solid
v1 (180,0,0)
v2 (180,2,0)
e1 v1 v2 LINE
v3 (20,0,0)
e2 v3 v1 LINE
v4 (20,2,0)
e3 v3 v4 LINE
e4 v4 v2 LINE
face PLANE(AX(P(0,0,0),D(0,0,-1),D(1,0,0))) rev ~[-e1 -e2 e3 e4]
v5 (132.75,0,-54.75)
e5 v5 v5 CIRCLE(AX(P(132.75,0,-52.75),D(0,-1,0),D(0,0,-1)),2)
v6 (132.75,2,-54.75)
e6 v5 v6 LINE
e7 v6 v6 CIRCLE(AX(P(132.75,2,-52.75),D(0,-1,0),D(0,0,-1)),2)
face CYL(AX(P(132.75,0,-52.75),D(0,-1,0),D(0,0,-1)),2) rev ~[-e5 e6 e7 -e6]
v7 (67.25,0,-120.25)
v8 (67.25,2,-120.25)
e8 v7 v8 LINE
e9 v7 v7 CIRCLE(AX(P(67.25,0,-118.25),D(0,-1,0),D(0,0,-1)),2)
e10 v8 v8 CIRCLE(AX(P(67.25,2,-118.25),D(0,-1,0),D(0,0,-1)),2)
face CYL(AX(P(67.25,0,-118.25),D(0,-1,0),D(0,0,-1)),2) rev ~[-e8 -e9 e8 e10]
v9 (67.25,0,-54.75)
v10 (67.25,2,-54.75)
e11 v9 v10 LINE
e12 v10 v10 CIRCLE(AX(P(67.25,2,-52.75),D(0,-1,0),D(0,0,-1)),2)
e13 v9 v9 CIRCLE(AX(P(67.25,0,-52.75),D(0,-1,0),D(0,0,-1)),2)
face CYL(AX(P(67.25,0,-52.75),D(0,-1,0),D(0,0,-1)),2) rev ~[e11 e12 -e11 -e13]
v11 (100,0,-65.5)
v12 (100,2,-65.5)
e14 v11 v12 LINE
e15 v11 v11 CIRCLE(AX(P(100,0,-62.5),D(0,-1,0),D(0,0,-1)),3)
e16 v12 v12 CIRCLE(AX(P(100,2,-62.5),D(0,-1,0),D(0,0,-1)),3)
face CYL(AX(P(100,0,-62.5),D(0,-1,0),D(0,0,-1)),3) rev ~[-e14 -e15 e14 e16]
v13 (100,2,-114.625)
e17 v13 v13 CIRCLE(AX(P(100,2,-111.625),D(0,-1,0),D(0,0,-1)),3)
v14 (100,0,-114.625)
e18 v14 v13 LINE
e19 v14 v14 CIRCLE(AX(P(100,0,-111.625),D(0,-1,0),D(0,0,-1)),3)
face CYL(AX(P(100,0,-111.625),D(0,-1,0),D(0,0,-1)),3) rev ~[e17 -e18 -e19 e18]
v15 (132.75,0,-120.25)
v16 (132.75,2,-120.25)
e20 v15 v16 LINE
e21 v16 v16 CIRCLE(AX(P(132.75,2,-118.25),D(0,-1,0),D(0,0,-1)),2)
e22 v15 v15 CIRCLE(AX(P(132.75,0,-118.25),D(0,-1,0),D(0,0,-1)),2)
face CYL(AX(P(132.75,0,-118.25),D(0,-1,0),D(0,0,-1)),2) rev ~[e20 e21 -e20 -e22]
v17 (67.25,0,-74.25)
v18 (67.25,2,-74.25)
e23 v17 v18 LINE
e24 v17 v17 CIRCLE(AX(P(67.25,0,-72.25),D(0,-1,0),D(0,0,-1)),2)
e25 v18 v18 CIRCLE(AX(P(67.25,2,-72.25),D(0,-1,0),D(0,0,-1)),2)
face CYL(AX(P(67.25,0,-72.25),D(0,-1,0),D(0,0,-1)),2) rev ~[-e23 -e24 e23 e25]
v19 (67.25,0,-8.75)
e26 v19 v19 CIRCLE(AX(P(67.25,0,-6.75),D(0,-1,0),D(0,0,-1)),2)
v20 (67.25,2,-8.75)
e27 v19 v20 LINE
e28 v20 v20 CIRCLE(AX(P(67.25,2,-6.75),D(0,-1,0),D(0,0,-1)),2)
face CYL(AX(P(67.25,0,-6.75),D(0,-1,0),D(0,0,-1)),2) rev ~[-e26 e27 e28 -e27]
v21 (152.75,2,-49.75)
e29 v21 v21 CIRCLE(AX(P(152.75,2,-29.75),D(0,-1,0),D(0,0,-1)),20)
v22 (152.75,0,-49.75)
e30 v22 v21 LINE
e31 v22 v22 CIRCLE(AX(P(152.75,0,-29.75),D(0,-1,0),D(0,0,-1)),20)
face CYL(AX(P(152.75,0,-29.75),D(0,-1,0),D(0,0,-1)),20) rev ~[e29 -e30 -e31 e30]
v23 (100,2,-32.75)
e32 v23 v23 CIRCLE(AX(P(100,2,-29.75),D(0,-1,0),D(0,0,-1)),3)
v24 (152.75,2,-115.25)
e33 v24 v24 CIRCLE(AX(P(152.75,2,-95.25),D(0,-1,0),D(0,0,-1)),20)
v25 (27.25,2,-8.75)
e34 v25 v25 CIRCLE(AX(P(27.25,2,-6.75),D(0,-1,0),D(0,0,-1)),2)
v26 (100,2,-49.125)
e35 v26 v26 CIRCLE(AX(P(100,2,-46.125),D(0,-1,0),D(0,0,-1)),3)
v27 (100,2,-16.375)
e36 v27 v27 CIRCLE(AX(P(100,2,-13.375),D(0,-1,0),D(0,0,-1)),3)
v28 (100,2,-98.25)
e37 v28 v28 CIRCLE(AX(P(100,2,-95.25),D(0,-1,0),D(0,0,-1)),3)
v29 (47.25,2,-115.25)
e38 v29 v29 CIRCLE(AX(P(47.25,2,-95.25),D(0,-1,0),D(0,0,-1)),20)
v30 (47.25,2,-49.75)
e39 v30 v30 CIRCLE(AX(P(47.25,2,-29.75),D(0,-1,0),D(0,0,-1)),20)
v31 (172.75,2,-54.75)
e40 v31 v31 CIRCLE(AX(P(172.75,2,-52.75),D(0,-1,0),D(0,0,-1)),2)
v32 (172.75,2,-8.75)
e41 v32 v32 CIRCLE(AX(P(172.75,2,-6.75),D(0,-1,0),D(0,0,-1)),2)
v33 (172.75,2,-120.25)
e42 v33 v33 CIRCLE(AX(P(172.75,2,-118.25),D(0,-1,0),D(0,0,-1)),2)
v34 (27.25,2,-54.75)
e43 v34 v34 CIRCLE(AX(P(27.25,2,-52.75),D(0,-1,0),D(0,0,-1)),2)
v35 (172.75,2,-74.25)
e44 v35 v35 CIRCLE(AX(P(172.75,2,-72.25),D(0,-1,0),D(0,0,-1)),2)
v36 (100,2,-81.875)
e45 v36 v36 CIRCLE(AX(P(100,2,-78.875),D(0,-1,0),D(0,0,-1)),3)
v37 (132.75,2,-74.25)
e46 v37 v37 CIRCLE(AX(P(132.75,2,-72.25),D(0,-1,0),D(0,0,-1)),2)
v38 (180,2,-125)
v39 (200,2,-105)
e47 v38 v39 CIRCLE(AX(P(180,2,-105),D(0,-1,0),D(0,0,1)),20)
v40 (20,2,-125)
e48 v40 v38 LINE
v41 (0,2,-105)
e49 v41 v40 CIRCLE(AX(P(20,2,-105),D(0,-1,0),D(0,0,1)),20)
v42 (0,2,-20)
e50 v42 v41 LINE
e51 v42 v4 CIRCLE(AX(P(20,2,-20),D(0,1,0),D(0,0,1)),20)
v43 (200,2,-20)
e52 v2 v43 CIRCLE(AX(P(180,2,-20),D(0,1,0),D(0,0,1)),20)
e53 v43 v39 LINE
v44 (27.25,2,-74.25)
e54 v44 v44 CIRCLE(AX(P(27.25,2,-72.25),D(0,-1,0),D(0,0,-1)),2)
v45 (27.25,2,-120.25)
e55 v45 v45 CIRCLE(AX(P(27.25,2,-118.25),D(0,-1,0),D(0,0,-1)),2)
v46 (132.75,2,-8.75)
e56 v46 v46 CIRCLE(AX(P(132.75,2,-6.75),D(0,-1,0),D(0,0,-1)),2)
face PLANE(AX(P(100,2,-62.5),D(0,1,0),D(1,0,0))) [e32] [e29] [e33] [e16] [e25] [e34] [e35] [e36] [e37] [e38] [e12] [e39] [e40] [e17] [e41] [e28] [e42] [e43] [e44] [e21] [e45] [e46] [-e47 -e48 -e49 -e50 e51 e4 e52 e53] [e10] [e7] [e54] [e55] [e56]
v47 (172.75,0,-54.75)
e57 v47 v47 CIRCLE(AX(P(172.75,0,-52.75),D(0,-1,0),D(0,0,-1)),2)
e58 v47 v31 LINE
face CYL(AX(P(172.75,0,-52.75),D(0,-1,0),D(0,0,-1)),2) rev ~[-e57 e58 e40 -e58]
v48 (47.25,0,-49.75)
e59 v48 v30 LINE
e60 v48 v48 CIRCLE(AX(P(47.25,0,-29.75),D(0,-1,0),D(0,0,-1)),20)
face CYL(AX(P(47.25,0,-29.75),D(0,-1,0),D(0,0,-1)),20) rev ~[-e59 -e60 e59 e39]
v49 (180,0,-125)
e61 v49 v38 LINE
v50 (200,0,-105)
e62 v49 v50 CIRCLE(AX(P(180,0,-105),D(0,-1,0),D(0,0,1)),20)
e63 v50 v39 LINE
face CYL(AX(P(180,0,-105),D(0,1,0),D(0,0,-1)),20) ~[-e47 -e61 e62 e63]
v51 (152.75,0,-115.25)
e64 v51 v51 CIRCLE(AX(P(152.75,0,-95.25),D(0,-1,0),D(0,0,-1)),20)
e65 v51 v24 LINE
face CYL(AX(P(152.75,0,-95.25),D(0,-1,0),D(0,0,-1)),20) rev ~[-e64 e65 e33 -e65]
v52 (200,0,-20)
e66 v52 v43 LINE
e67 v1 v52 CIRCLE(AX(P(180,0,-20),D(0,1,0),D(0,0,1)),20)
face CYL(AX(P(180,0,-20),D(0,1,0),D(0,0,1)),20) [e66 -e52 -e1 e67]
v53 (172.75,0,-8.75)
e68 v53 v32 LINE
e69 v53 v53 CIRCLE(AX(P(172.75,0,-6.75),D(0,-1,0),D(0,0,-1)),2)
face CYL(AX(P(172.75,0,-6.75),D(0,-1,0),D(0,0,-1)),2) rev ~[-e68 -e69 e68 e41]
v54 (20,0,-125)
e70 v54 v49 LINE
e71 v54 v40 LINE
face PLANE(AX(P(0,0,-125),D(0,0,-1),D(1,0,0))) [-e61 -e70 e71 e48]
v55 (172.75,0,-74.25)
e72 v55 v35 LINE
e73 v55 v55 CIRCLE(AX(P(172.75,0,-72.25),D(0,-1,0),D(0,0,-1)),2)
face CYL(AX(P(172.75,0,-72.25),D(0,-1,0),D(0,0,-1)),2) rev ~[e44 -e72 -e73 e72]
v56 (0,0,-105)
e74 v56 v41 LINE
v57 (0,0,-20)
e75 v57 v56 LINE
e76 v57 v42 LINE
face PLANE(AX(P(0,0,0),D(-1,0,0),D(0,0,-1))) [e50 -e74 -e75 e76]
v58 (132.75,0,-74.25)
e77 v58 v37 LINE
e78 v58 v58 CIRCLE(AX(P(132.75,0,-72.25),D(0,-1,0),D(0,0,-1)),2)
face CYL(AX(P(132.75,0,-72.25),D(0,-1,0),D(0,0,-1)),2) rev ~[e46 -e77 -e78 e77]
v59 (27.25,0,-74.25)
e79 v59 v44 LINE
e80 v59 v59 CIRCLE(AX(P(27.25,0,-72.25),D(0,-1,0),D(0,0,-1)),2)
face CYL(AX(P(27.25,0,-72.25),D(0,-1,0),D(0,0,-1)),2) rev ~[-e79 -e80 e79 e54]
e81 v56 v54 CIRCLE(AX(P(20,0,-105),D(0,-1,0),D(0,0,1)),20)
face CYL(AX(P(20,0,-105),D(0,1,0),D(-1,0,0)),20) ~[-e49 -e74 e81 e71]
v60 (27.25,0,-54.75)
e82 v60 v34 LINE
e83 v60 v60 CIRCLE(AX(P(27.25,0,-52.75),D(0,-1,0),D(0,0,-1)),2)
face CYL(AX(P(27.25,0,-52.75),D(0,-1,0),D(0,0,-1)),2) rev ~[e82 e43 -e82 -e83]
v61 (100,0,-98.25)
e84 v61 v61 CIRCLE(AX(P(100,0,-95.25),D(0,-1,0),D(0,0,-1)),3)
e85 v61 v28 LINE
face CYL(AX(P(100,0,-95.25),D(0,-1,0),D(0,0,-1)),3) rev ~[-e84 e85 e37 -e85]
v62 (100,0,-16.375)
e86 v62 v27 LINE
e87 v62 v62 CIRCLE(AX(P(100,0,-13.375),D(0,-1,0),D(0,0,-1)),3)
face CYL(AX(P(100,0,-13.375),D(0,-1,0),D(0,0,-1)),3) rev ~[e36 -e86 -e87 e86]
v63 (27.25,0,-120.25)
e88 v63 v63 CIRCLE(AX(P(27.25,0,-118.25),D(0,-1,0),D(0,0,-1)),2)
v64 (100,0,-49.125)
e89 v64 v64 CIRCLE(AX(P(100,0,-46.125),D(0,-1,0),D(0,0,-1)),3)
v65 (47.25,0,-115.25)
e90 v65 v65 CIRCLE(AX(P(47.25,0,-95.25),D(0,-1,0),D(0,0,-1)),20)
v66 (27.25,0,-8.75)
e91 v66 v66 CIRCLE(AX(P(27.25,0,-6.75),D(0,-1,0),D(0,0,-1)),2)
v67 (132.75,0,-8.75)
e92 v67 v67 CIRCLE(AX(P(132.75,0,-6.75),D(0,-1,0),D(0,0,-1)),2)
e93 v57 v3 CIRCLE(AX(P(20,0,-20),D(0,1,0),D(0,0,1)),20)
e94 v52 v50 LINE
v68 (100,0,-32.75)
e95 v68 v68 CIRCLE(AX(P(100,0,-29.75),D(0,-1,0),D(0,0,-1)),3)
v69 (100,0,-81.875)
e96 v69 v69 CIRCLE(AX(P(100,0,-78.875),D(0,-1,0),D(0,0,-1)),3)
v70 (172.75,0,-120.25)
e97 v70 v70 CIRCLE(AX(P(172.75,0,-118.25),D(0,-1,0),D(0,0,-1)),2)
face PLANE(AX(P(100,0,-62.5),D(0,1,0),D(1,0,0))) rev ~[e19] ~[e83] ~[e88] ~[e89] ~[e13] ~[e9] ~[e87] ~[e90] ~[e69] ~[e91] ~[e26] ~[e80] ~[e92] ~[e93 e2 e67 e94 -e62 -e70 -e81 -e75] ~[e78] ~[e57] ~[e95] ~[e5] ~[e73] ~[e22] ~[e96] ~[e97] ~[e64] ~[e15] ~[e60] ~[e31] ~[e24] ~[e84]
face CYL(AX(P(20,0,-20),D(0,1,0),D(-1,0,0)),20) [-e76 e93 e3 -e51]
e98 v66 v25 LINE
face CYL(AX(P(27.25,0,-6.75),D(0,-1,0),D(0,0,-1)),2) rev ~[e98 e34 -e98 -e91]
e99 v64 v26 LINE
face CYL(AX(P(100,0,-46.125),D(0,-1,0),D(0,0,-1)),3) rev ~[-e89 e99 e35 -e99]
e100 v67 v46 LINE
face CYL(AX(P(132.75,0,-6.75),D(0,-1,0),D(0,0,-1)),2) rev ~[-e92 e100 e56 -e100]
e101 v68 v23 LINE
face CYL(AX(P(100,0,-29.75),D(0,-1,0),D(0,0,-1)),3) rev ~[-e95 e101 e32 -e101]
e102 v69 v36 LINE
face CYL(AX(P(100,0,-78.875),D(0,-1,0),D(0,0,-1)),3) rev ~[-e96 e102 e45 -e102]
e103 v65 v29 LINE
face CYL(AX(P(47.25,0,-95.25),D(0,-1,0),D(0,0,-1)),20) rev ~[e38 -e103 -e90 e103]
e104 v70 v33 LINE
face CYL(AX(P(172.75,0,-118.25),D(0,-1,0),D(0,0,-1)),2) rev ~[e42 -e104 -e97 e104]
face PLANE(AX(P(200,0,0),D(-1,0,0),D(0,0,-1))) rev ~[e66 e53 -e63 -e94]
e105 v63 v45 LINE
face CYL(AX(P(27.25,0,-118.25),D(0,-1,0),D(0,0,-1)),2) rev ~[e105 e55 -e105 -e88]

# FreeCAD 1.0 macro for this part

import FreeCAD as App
import Part
import Sketcher

V = App.Vector
Q = App.Units.Quantity


def edges_at(feature, points):
    """Names of the edges that pass closest to the given points."""
    edges = feature.Shape.Edges
    near = lambda p: min(range(len(edges)), key=lambda i: edges[i].distToShape(Part.Vertex(*p))[0])
    return sorted({f"Edge{near(p) + 1}" for p in points})

doc = App.newDocument("Part")
body = doc.addObject("PartDesign::Body", "Body")

sketch1 = body.newObject("Sketcher::SketchObject", "Sketch")
sketch1.AttachmentSupport = (doc.getObject("XZ_Plane"), [""])
sketch1.MapMode = "FlatFace"
sketch1.addGeometry(Part.LineSegment(V(0, -125, 0), V(0, 0, 0)), False)
sketch1.addGeometry(Part.LineSegment(V(0, 0, 0), V(200, 0, 0)), False)
sketch1.addGeometry(Part.LineSegment(V(200, 0, 0), V(200, -125, 0)), False)
sketch1.addGeometry(Part.LineSegment(V(200, -125, 0), V(0, -125, 0)), False)
sketch1.addConstraint(Sketcher.Constraint("Coincident", 0, 2, 1, 1))
sketch1.addConstraint(Sketcher.Constraint("Coincident", 1, 2, 2, 1))
sketch1.addConstraint(Sketcher.Constraint("Coincident", 2, 2, 3, 1))
sketch1.addConstraint(Sketcher.Constraint("Coincident", 3, 2, 0, 1))
sketch1.addConstraint(Sketcher.Constraint("Vertical", 0))
sketch1.addConstraint(Sketcher.Constraint("Horizontal", 1))
sketch1.addConstraint(Sketcher.Constraint("Vertical", 2))
sketch1.addConstraint(Sketcher.Constraint("Horizontal", 3))
sketch1.addConstraint(Sketcher.Constraint("Coincident", 0, 2, -1, 1))
sketch1.addConstraint(Sketcher.Constraint("DistanceX", 1, 1, 1, 2, Q("200 mm")))
sketch1.addConstraint(Sketcher.Constraint("DistanceY", 0, 1, 0, 2, Q("125 mm")))
pad1 = body.newObject("PartDesign::Pad", "Pad")
pad1.Profile = sketch1
pad1.Length = 2
pad1.Reversed = True

sketch2 = body.newObject("Sketcher::SketchObject", "Sketch001")
sketch2.AttachmentSupport = (doc.getObject("XZ_Plane"), [""])
sketch2.MapMode = "FlatFace"
sketch2.addGeometry(Part.Circle(V(27.2, -6.8, 0), V(0, 0, 1), 2), False)
sketch2.addGeometry(Part.Circle(V(67.2, -6.8, 0), V(0, 0, 1), 2), False)
sketch2.addGeometry(Part.Circle(V(132.8, -6.8, 0), V(0, 0, 1), 2), False)
sketch2.addGeometry(Part.Circle(V(172.8, -6.8, 0), V(0, 0, 1), 2), False)
sketch2.addGeometry(Part.Circle(V(172.8, -52.8, 0), V(0, 0, 1), 2), False)
sketch2.addGeometry(Part.Circle(V(132.8, -52.8, 0), V(0, 0, 1), 2), False)
sketch2.addGeometry(Part.Circle(V(132.8, -72.2, 0), V(0, 0, 1), 2), False)
sketch2.addGeometry(Part.Circle(V(172.8, -72.2, 0), V(0, 0, 1), 2), False)
sketch2.addGeometry(Part.Circle(V(132.8, -118.2, 0), V(0, 0, 1), 2), False)
sketch2.addGeometry(Part.Circle(V(172.8, -118.2, 0), V(0, 0, 1), 2), False)
sketch2.addGeometry(Part.Circle(V(27.2, -52.8, 0), V(0, 0, 1), 2), False)
sketch2.addGeometry(Part.Circle(V(67.2, -52.8, 0), V(0, 0, 1), 2), False)
sketch2.addGeometry(Part.Circle(V(27.2, -72.2, 0), V(0, 0, 1), 2), False)
sketch2.addGeometry(Part.Circle(V(67.2, -72.2, 0), V(0, 0, 1), 2), False)
sketch2.addGeometry(Part.Circle(V(67.2, -118.2, 0), V(0, 0, 1), 2), False)
sketch2.addGeometry(Part.Circle(V(27.2, -118.2, 0), V(0, 0, 1), 2), False)
sketch2.addConstraint(Sketcher.Constraint("Equal", 0, 1))
sketch2.addConstraint(Sketcher.Constraint("Equal", 1, 2))
sketch2.addConstraint(Sketcher.Constraint("Equal", 2, 3))
sketch2.addConstraint(Sketcher.Constraint("Equal", 3, 4))
sketch2.addConstraint(Sketcher.Constraint("Equal", 4, 5))
sketch2.addConstraint(Sketcher.Constraint("Equal", 5, 6))
sketch2.addConstraint(Sketcher.Constraint("Equal", 6, 7))
sketch2.addConstraint(Sketcher.Constraint("Equal", 7, 8))
sketch2.addConstraint(Sketcher.Constraint("Equal", 8, 9))
sketch2.addConstraint(Sketcher.Constraint("Equal", 9, 10))
sketch2.addConstraint(Sketcher.Constraint("Equal", 10, 11))
sketch2.addConstraint(Sketcher.Constraint("Equal", 11, 12))
sketch2.addConstraint(Sketcher.Constraint("Equal", 12, 13))
sketch2.addConstraint(Sketcher.Constraint("Equal", 13, 14))
sketch2.addConstraint(Sketcher.Constraint("Equal", 14, 15))
sketch2.addConstraint(Sketcher.Constraint("Horizontal", 0, 3, 1, 3))
sketch2.addConstraint(Sketcher.Constraint("Horizontal", 1, 3, 2, 3))
sketch2.addConstraint(Sketcher.Constraint("Horizontal", 2, 3, 3, 3))
sketch2.addConstraint(Sketcher.Constraint("Horizontal", 4, 3, 5, 3))
sketch2.addConstraint(Sketcher.Constraint("Horizontal", 6, 3, 7, 3))
sketch2.addConstraint(Sketcher.Constraint("Horizontal", 8, 3, 9, 3))
sketch2.addConstraint(Sketcher.Constraint("Horizontal", 5, 3, 10, 3))
sketch2.addConstraint(Sketcher.Constraint("Horizontal", 10, 3, 11, 3))
sketch2.addConstraint(Sketcher.Constraint("Horizontal", 7, 3, 12, 3))
sketch2.addConstraint(Sketcher.Constraint("Horizontal", 12, 3, 13, 3))
sketch2.addConstraint(Sketcher.Constraint("Horizontal", 9, 3, 14, 3))
sketch2.addConstraint(Sketcher.Constraint("Horizontal", 14, 3, 15, 3))
sketch2.addConstraint(Sketcher.Constraint("Vertical", 3, 3, 4, 3))
sketch2.addConstraint(Sketcher.Constraint("Vertical", 2, 3, 5, 3))
sketch2.addConstraint(Sketcher.Constraint("Vertical", 5, 3, 6, 3))
sketch2.addConstraint(Sketcher.Constraint("Vertical", 4, 3, 7, 3))
sketch2.addConstraint(Sketcher.Constraint("Vertical", 6, 3, 8, 3))
sketch2.addConstraint(Sketcher.Constraint("Vertical", 7, 3, 9, 3))
sketch2.addConstraint(Sketcher.Constraint("Vertical", 0, 3, 10, 3))
sketch2.addConstraint(Sketcher.Constraint("Vertical", 1, 3, 11, 3))
sketch2.addConstraint(Sketcher.Constraint("Vertical", 10, 3, 12, 3))
sketch2.addConstraint(Sketcher.Constraint("Vertical", 11, 3, 13, 3))
sketch2.addConstraint(Sketcher.Constraint("Vertical", 13, 3, 14, 3))
sketch2.addConstraint(Sketcher.Constraint("Vertical", 12, 3, 15, 3))
sketch2.addConstraint(Sketcher.Constraint("Diameter", 0, Q("4 mm")))
sketch2.addConstraint(Sketcher.Constraint("DistanceX", 0, 3, 1, 3, Q("40 mm")))
sketch2.addConstraint(Sketcher.Constraint("DistanceX", 2, 3, 3, 3, Q("40 mm")))
sketch2.addConstraint(Sketcher.Constraint("DistanceY", 4, 3, 3, 3, Q("46 mm")))
sketch2.addConstraint(Sketcher.Constraint("DistanceY", 8, 3, 6, 3, Q("46 mm")))
sketch2.addConstraint(Sketcher.Constraint("DistanceX", 1, 3, 2, 3, Q("65.5 mm")))
sketch2.addConstraint(Sketcher.Constraint("DistanceY", 6, 3, 5, 3, Q("19.5 mm")))
sketch2.addConstraint(Sketcher.Constraint("DistanceX", -1, 1, 0, 3, Q("27.25 mm")))
sketch2.addConstraint(Sketcher.Constraint("DistanceY", 0, 3, -1, 1, Q("6.75 mm")))
pocket1 = body.newObject("PartDesign::Pocket", "Pocket")
pocket1.Profile = sketch2
pocket1.Type = "ThroughAll"

sketch3 = body.newObject("Sketcher::SketchObject", "Sketch002")
sketch3.AttachmentSupport = (doc.getObject("XZ_Plane"), [""])
sketch3.MapMode = "FlatFace"
sketch3.addGeometry(Part.Circle(V(47.2, -29.8, 0), V(0, 0, 1), 20), False)
sketch3.addGeometry(Part.Circle(V(152.8, -29.8, 0), V(0, 0, 1), 20), False)
sketch3.addGeometry(Part.Circle(V(152.8, -95.2, 0), V(0, 0, 1), 20), False)
sketch3.addGeometry(Part.Circle(V(47.2, -95.2, 0), V(0, 0, 1), 20), False)
sketch3.addGeometry(Part.Circle(V(100, -62.5, 0), V(0, 0, 1), 3), False)
sketch3.addGeometry(Part.Circle(V(100, -29.8, 0), V(0, 0, 1), 3), False)
sketch3.addGeometry(Part.Circle(V(100, -95.2, 0), V(0, 0, 1), 3), False)
sketch3.addGeometry(Part.Circle(V(100, -13.4, 0), V(0, 0, 1), 3), False)
sketch3.addGeometry(Part.Circle(V(100, -46.1, 0), V(0, 0, 1), 3), False)
sketch3.addGeometry(Part.Circle(V(100, -78.9, 0), V(0, 0, 1), 3), False)
sketch3.addGeometry(Part.Circle(V(100, -111.6, 0), V(0, 0, 1), 3), False)
sketch3.addConstraint(Sketcher.Constraint("Equal", 0, 1))
sketch3.addConstraint(Sketcher.Constraint("Equal", 1, 2))
sketch3.addConstraint(Sketcher.Constraint("Equal", 2, 3))
sketch3.addConstraint(Sketcher.Constraint("Equal", 4, 5))
sketch3.addConstraint(Sketcher.Constraint("Equal", 5, 6))
sketch3.addConstraint(Sketcher.Constraint("Equal", 6, 7))
sketch3.addConstraint(Sketcher.Constraint("Equal", 7, 8))
sketch3.addConstraint(Sketcher.Constraint("Equal", 8, 9))
sketch3.addConstraint(Sketcher.Constraint("Equal", 9, 10))
sketch3.addConstraint(Sketcher.Constraint("Horizontal", 0, 3, 1, 3))
sketch3.addConstraint(Sketcher.Constraint("Horizontal", 2, 3, 3, 3))
sketch3.addConstraint(Sketcher.Constraint("Horizontal", 1, 3, 5, 3))
sketch3.addConstraint(Sketcher.Constraint("Horizontal", 3, 3, 6, 3))
sketch3.addConstraint(Sketcher.Constraint("Vertical", 1, 3, 2, 3))
sketch3.addConstraint(Sketcher.Constraint("Vertical", 0, 3, 3, 3))
sketch3.addConstraint(Sketcher.Constraint("Vertical", 4, 3, 5, 3))
sketch3.addConstraint(Sketcher.Constraint("Vertical", 5, 3, 6, 3))
sketch3.addConstraint(Sketcher.Constraint("Vertical", 6, 3, 7, 3))
sketch3.addConstraint(Sketcher.Constraint("Vertical", 7, 3, 8, 3))
sketch3.addConstraint(Sketcher.Constraint("Vertical", 8, 3, 9, 3))
sketch3.addConstraint(Sketcher.Constraint("Vertical", 9, 3, 10, 3))
sketch3.addConstraint(Sketcher.Constraint("Diameter", 0, Q("40 mm")))
sketch3.addConstraint(Sketcher.Constraint("Diameter", 4, Q("6 mm")))
sketch3.addConstraint(Sketcher.Constraint("DistanceX", -1, 1, 4, 3, Q("100 mm")))
sketch3.addConstraint(Sketcher.Constraint("DistanceY", 4, 3, -1, 1, Q("62.5 mm")))
sketch3.addConstraint(Sketcher.Constraint("DistanceX", 0, 3, 1, 3, Q("105.5 mm")))
sketch3.addConstraint(Sketcher.Constraint("DistanceY", 2, 3, 1, 3, Q("65.5 mm")))
sketch3.addConstraint(Sketcher.Constraint("DistanceX", -1, 1, 0, 3, Q("47.25 mm")))
sketch3.addConstraint(Sketcher.Constraint("DistanceY", 0, 3, -1, 1, Q("29.75 mm")))
sketch3.addConstraint(Sketcher.Constraint("DistanceY", 8, 3, 7, 3, Q("32.75 mm")))
sketch3.addConstraint(Sketcher.Constraint("DistanceY", 9, 3, 8, 3, Q("32.75 mm")))
sketch3.addConstraint(Sketcher.Constraint("DistanceY", 10, 3, 9, 3, Q("32.75 mm")))
sketch3.addConstraint(Sketcher.Constraint("DistanceY", 7, 3, -1, 1, Q("13.375 mm")))
pocket2 = body.newObject("PartDesign::Pocket", "Pocket001")
pocket2.Profile = sketch3
pocket2.Type = "ThroughAll"
doc.recompute()

fillet = body.newObject("PartDesign::Fillet", "Fillet")
fillet.Base = (pocket2, edges_at(pocket2, [
    (0, 1, -125),
    (200, 1, -125),
    (200, 1, 0),
    (0, 1, 0),
]))
fillet.Radius = 20

doc.recompute()
